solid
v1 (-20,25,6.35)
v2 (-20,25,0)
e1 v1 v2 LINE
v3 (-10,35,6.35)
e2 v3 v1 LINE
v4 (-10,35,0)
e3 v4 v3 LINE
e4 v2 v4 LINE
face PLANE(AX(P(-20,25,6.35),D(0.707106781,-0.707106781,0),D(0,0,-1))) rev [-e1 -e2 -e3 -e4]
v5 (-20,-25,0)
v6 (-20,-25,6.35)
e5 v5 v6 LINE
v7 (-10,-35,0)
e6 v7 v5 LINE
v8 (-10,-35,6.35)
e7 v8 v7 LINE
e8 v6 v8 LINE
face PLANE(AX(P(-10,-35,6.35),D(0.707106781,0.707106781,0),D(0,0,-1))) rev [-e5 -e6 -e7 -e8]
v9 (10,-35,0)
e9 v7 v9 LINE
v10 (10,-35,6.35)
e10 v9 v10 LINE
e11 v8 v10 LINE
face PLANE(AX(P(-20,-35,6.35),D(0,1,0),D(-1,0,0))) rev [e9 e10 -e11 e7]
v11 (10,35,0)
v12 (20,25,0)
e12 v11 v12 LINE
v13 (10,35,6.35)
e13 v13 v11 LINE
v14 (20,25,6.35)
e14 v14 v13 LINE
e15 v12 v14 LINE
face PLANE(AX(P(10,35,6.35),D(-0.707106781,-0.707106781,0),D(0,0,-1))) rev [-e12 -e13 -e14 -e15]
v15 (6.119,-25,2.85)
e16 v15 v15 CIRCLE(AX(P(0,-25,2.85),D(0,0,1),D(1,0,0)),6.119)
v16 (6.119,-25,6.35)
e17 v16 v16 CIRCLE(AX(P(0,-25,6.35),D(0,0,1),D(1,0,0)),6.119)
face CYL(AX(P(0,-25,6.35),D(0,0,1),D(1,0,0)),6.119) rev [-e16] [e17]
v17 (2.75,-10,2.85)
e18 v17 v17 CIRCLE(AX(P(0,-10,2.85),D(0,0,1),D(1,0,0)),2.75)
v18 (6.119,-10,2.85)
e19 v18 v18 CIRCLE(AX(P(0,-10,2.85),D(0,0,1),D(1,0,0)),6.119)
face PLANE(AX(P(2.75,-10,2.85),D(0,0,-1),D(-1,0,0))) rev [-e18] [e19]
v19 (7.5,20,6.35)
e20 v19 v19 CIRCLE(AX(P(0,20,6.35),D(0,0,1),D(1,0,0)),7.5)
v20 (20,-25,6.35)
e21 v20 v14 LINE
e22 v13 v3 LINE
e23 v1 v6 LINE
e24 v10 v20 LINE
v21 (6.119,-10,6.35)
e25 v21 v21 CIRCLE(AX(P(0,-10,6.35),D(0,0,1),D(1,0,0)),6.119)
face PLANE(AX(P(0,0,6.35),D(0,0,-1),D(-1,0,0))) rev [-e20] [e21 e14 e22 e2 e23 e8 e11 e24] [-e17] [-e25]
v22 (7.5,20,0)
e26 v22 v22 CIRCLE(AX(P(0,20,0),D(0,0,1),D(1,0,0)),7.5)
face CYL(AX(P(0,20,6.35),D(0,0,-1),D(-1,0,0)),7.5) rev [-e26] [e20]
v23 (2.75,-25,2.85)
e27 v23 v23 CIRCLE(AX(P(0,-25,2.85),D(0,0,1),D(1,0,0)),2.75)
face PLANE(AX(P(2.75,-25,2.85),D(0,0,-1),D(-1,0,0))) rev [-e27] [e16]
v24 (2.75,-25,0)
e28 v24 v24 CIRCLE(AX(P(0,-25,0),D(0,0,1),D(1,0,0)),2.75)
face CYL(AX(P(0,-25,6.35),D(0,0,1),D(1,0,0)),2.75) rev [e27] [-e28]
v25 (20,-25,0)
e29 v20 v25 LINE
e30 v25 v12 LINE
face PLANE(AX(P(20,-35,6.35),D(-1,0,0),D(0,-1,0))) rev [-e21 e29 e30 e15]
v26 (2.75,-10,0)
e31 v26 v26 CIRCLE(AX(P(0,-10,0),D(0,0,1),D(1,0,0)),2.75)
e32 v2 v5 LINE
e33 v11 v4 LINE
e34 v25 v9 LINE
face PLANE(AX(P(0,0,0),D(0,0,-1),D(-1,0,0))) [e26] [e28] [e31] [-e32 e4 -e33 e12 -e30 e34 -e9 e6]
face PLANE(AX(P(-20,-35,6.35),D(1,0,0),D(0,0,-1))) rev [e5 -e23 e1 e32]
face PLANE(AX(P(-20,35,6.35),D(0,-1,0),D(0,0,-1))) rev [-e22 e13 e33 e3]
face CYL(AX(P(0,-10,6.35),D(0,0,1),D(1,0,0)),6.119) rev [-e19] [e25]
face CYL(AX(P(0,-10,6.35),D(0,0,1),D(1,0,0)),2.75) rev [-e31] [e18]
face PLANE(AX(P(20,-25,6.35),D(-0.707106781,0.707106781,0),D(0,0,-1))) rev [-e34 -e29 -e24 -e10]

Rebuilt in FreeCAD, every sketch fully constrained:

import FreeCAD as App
import Part
import Sketcher
from FreeCAD import Vector


def edges_at(feature, points):
    """Names of the edges that pass closest to the given points."""
    edges = feature.Shape.Edges
    near = lambda p: min(range(len(edges)), key=lambda i: edges[i].distToShape(Part.Vertex(*p))[0])
    return sorted({f"Edge{near(p) + 1}" for p in points})

doc = App.newDocument("Part")
body = doc.addObject("PartDesign::Body", "Body")

# Sketch on XY plane
sketch1 = doc.addObject("Sketcher::SketchObject", "Sketch")
body.addObject(sketch1)
sketch1.AttachmentSupport = (doc.XY_Plane, [""])
sketch1.MapMode = "FlatFace"
sketch1.addGeometry([
    Part.LineSegment(Vector(-20, 35, 0), Vector(-20, -35, 0)),  # 0
    Part.LineSegment(Vector(-20, -35, 0), Vector(20, -35, 0)),  # 1
    Part.LineSegment(Vector(20, -35, 0), Vector(20, 35, 0)),  # 2
    Part.LineSegment(Vector(20, 35, 0), Vector(-20, 35, 0)),  # 3
    Part.Circle(Vector(0, 20, 0), Vector(0, 0, 1), 7.5),  # 4
], False)
sketch1.addConstraint([
    Sketcher.Constraint("Coincident", 0, 2, 1, 1),
    Sketcher.Constraint("Coincident", 1, 2, 2, 1),
    Sketcher.Constraint("Coincident", 2, 2, 3, 1),
    Sketcher.Constraint("Coincident", 3, 2, 0, 1),
    Sketcher.Constraint("Vertical", 0),
    Sketcher.Constraint("Horizontal", 1),
    Sketcher.Constraint("Vertical", 2),
    Sketcher.Constraint("Horizontal", 3),
    Sketcher.Constraint("Symmetric", 0, 2, 2, 2, -1, 1),
    Sketcher.Constraint("PointOnObject", 4, 3, -2),
    Sketcher.Constraint("Diameter", 4, 15.0),
    Sketcher.Constraint("DistanceX", 1, 1, 1, 2, 40.0),
    Sketcher.Constraint("DistanceY", 0, 2, 0, 1, 70.0),
    Sketcher.Constraint("DistanceY", -1, 1, 4, 3, 20.0),
])
pad1 = doc.addObject("PartDesign::Pad", "Pad")
body.addObject(pad1)
pad1.Profile = sketch1
pad1.Length = 6.35

# Sketch on XY plane
sketch2 = doc.addObject("Sketcher::SketchObject", "Sketch001")
body.addObject(sketch2)
sketch2.AttachmentSupport = (doc.XY_Plane, [""])
sketch2.MapMode = "FlatFace"
sketch2.AttachmentOffset = App.Placement(Vector(0, 0, 6.35), App.Rotation())
sketch2.addGeometry([
    Part.Circle(Vector(0, -10, 0), Vector(0, 0, 1), 2.75),
    Part.Circle(Vector(0, -25, 0), Vector(0, 0, 1), 2.75),
], False)
sketch2.addConstraint([
    Sketcher.Constraint("Equal", 0, 1),
    Sketcher.Constraint("PointOnObject", 0, 3, -2),
    Sketcher.Constraint("PointOnObject", 1, 3, -2),
    Sketcher.Constraint("Diameter", 0, 5.5),
    Sketcher.Constraint("DistanceY", 0, 3, -1, 1, 10.0),
    Sketcher.Constraint("DistanceY", 1, 3, -1, 1, 25.0),
])
doc.recompute()
hole = doc.addObject("PartDesign::Hole", "Hole")
body.addObject(hole)
hole.Profile = sketch2
hole.ThreadType = "None"
hole.Diameter = 5.5
hole.DepthType = "ThroughAll"
hole.HoleCutType = "Counterbore"
hole.HoleCutDiameter = 12.238
hole.HoleCutDepth = 3.5
doc.recompute()

chamfer = doc.addObject("PartDesign::Chamfer", "Chamfer")
body.addObject(chamfer)
chamfer.Base = (hole, edges_at(hole, [
    (-20, 35, 3.175),
    (20, 35, 3.175),
    (20, -35, 3.175),
    (-20, -35, 3.175),
]))
chamfer.Size = 10

doc.recompute()
